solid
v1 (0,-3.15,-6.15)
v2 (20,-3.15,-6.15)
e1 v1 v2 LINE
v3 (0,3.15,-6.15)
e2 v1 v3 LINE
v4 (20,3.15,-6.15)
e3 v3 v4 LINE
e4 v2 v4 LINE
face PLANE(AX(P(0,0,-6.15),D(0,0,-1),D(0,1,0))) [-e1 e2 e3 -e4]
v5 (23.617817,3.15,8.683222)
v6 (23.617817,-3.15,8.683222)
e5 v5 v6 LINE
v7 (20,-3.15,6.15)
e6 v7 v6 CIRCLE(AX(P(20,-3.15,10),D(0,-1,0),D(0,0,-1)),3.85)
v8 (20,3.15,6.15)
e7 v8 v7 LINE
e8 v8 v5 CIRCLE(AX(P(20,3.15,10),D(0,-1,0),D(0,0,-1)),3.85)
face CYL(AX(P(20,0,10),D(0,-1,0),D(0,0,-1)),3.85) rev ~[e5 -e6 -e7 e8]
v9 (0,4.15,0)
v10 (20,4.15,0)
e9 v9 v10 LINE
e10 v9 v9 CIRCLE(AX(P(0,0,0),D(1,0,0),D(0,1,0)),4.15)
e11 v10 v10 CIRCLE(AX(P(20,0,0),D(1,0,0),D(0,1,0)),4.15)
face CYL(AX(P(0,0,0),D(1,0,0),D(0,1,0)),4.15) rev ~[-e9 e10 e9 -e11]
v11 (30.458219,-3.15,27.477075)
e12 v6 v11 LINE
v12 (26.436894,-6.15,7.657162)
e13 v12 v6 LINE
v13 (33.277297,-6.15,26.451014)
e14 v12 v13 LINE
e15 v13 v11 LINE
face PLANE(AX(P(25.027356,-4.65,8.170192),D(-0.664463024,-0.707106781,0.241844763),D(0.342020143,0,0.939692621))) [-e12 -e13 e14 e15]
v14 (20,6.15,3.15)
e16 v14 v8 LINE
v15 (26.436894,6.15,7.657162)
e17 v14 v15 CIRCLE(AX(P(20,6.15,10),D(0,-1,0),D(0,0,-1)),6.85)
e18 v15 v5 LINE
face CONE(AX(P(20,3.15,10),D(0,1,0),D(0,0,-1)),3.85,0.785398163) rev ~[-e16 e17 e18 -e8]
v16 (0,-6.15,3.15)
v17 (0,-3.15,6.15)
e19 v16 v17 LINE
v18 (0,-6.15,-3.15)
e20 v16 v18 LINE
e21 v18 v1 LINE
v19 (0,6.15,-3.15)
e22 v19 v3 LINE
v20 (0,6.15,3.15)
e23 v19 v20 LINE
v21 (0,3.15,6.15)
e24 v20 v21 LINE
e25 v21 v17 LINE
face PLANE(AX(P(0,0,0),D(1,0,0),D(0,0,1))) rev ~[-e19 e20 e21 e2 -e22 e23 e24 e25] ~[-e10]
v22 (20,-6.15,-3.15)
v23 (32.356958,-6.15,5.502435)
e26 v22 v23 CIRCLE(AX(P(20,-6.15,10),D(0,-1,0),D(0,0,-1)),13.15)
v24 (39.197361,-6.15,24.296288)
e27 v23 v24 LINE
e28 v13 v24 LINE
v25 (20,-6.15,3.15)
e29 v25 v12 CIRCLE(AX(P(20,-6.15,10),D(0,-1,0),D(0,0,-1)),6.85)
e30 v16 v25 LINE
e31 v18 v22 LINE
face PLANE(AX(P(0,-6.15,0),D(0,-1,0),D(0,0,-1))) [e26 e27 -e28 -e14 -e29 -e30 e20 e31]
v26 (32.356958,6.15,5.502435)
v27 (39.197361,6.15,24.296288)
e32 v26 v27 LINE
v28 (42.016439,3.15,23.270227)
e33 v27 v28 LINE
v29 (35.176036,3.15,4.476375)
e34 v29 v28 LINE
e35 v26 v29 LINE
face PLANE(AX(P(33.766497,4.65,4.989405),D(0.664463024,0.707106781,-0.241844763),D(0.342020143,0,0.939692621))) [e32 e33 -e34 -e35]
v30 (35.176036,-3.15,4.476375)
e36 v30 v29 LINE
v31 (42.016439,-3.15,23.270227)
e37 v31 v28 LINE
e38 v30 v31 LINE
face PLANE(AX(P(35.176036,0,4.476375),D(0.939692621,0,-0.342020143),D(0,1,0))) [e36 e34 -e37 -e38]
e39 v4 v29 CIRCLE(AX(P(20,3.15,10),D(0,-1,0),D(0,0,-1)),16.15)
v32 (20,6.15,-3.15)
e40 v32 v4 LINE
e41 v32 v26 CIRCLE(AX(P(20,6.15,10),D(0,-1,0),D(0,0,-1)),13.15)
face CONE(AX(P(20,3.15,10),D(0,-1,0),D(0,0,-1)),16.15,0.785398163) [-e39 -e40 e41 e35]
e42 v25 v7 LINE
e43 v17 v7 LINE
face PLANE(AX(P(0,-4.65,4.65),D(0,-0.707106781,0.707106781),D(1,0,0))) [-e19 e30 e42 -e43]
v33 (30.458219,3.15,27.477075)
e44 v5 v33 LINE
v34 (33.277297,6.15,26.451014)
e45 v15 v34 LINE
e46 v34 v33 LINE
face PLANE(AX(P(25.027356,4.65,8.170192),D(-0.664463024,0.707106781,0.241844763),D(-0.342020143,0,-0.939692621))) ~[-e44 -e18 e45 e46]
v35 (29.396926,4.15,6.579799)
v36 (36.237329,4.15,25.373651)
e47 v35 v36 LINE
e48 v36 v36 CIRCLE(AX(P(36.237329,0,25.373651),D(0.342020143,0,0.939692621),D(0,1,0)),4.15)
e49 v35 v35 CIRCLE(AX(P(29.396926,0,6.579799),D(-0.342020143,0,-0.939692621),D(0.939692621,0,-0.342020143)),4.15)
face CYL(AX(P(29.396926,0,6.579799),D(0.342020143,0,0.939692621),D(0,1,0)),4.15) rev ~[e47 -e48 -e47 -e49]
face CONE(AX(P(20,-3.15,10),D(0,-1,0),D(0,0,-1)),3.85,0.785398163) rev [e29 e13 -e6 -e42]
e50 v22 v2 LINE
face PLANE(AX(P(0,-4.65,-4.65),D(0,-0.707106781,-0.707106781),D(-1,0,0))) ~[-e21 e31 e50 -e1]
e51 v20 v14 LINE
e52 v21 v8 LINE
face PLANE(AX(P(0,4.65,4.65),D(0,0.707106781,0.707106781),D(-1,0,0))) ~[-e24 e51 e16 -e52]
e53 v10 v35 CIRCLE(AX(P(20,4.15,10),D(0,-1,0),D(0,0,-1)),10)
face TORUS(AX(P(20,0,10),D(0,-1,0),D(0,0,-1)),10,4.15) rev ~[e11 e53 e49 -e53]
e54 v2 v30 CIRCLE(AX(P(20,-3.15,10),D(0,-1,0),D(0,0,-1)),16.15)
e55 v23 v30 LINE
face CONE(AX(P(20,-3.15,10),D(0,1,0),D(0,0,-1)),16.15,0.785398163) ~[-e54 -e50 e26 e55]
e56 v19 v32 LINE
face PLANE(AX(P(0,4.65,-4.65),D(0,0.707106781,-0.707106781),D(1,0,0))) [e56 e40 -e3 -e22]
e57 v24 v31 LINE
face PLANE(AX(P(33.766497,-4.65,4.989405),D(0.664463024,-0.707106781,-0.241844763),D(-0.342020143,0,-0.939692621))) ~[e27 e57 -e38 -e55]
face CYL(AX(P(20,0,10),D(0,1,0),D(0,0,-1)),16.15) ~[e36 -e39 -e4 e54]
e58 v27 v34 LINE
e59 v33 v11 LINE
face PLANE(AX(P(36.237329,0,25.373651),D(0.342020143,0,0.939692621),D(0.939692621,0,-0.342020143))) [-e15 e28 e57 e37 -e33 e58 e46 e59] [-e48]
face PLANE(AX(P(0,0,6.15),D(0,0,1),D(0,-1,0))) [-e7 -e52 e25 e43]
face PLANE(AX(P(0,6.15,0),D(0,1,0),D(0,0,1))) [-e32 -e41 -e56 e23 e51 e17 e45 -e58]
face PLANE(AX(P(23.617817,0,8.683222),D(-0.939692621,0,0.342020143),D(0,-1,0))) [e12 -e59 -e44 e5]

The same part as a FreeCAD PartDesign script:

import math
import FreeCAD as App
import Part
import Sketcher
from FreeCAD import Vector
Q = App.Units.Quantity


def edges_at(feature, points):
    """Names of the edges that pass closest to the given points."""
    edges = feature.Shape.Edges
    near = lambda p: min(range(len(edges)), key=lambda i: edges[i].distToShape(Part.Vertex(*p))[0])
    return sorted({f"Edge{near(p) + 1}" for p in points})

doc = App.newDocument("Part")
params = doc.addObject("Spreadsheet::Sheet", "Params")
for row, (alias, value) in enumerate([
    ("sketch1_diameter", "8.3 mm"),
    ("sketch1_width", "12.3 mm"),
    ("sketch2_radius", "10 mm"),
    ("sketch2_width", "20 mm"),
    ("sketch2_length", "20 mm"),
    ("chamfer_size", "3 mm"),
], start=1):
    params.set(f"A{row}", alias)
    params.set(f"B{row}", "=" + value)
    params.setAlias(f"B{row}", alias)

body = doc.addObject("PartDesign::Body", "Body")

# Sketch on YZ plane
sketch1 = doc.addObject("Sketcher::SketchObject", "Sketch")
body.addObject(sketch1)
sketch1.AttachmentSupport = (doc.YZ_Plane, [""])
sketch1.MapMode = "FlatFace"
sketch1.addGeometry([
    Part.LineSegment(Vector(-6.2, 6.2, 0), Vector(-6.2, -6.2, 0)),  # 0
    Part.LineSegment(Vector(-6.2, -6.2, 0), Vector(6.2, -6.2, 0)),  # 1
    Part.LineSegment(Vector(6.2, -6.2, 0), Vector(6.2, 6.2, 0)),  # 2
    Part.LineSegment(Vector(6.2, 6.2, 0), Vector(-6.2, 6.2, 0)),  # 3
    Part.Circle(Vector(0, 0, 0), Vector(0, 0, 1), 4.2),  # 4
], False)
sketch1.addConstraint([
    Sketcher.Constraint("Coincident", 0, 2, 1, 1),
    Sketcher.Constraint("Coincident", 1, 2, 2, 1),
    Sketcher.Constraint("Coincident", 2, 2, 3, 1),
    Sketcher.Constraint("Coincident", 3, 2, 0, 1),
    Sketcher.Constraint("Vertical", 0),
    Sketcher.Constraint("Horizontal", 1),
    Sketcher.Constraint("Vertical", 2),
    Sketcher.Constraint("Horizontal", 3),
    Sketcher.Constraint("Coincident", 4, 3, -1, 1),
    Sketcher.Constraint("Symmetric", 0, 2, 2, 2, -1, 1),
    Sketcher.Constraint("Equal", 3, 0),
    Sketcher.Constraint("Diameter", 4, Q("8.3 mm")),
    Sketcher.Constraint("DistanceX", 1, 1, 1, 2, Q("12.3 mm")),
])
sketch1.setExpression("Constraints[11]", "Params.sketch1_diameter")
sketch1.setExpression("Constraints[12]", "Params.sketch1_width")

# Sketch on XZ plane
sketch2 = doc.addObject("Sketcher::SketchObject", "Sketch001")
body.addObject(sketch2)
sketch2.AttachmentSupport = (doc.XZ_Plane, [""])
sketch2.MapMode = "FlatFace"
sketch2.addGeometry([
    Part.LineSegment(Vector(0, 0, 0), Vector(20, 0, 0)),
    Part.ArcOfCircle(Part.Circle(Vector(20, 10, 0), Vector(0, 0, 1), 10), math.radians(-90), math.radians(-20)),
    Part.LineSegment(Vector(29, 7, 0), Vector(36, 25, 0)),
], False)
sketch2.addConstraint([
    Sketcher.Constraint("Tangent", 0, 2, 1, 1),
    Sketcher.Constraint("Tangent", 1, 2, 2, 1),
    Sketcher.Constraint("Horizontal", 0),
    Sketcher.Constraint("Coincident", 0, 1, -1, 1),
    Sketcher.Constraint("Radius", 1, Q("10 mm")),
    Sketcher.Constraint("DistanceX", 0, 1, 0, 2, Q("20 mm")),
    Sketcher.Constraint("Angle", 2, Q("70 deg")),
    Sketcher.Constraint("Distance", 2, Q("20 mm")),
])
sketch2.setExpression("Constraints[4]", "Params.sketch2_radius")
sketch2.setExpression("Constraints[5]", "Params.sketch2_width")
sketch2.setExpression("Constraints[7]", "Params.sketch2_length")
doc.recompute()

additivepipe = doc.addObject("PartDesign::AdditivePipe", "AdditivePipe")
body.addObject(additivepipe)
additivepipe.Profile = sketch1
additivepipe.Spine = (sketch2, ["Edge1", "Edge2", "Edge3"])
doc.recompute()

chamfer = doc.addObject("PartDesign::Chamfer", "Chamfer")
body.addObject(chamfer)
chamfer.Base = (additivepipe, edges_at(additivepipe, [
    (27.038, -6.15, 18.08),
    (38.596, -6.15, 13.873),
    (38.596, 6.15, 13.873),
    (27.038, 6.15, 18.08),
]))
chamfer.setExpression("Size", "Params.chamfer_size")

doc.recompute()
